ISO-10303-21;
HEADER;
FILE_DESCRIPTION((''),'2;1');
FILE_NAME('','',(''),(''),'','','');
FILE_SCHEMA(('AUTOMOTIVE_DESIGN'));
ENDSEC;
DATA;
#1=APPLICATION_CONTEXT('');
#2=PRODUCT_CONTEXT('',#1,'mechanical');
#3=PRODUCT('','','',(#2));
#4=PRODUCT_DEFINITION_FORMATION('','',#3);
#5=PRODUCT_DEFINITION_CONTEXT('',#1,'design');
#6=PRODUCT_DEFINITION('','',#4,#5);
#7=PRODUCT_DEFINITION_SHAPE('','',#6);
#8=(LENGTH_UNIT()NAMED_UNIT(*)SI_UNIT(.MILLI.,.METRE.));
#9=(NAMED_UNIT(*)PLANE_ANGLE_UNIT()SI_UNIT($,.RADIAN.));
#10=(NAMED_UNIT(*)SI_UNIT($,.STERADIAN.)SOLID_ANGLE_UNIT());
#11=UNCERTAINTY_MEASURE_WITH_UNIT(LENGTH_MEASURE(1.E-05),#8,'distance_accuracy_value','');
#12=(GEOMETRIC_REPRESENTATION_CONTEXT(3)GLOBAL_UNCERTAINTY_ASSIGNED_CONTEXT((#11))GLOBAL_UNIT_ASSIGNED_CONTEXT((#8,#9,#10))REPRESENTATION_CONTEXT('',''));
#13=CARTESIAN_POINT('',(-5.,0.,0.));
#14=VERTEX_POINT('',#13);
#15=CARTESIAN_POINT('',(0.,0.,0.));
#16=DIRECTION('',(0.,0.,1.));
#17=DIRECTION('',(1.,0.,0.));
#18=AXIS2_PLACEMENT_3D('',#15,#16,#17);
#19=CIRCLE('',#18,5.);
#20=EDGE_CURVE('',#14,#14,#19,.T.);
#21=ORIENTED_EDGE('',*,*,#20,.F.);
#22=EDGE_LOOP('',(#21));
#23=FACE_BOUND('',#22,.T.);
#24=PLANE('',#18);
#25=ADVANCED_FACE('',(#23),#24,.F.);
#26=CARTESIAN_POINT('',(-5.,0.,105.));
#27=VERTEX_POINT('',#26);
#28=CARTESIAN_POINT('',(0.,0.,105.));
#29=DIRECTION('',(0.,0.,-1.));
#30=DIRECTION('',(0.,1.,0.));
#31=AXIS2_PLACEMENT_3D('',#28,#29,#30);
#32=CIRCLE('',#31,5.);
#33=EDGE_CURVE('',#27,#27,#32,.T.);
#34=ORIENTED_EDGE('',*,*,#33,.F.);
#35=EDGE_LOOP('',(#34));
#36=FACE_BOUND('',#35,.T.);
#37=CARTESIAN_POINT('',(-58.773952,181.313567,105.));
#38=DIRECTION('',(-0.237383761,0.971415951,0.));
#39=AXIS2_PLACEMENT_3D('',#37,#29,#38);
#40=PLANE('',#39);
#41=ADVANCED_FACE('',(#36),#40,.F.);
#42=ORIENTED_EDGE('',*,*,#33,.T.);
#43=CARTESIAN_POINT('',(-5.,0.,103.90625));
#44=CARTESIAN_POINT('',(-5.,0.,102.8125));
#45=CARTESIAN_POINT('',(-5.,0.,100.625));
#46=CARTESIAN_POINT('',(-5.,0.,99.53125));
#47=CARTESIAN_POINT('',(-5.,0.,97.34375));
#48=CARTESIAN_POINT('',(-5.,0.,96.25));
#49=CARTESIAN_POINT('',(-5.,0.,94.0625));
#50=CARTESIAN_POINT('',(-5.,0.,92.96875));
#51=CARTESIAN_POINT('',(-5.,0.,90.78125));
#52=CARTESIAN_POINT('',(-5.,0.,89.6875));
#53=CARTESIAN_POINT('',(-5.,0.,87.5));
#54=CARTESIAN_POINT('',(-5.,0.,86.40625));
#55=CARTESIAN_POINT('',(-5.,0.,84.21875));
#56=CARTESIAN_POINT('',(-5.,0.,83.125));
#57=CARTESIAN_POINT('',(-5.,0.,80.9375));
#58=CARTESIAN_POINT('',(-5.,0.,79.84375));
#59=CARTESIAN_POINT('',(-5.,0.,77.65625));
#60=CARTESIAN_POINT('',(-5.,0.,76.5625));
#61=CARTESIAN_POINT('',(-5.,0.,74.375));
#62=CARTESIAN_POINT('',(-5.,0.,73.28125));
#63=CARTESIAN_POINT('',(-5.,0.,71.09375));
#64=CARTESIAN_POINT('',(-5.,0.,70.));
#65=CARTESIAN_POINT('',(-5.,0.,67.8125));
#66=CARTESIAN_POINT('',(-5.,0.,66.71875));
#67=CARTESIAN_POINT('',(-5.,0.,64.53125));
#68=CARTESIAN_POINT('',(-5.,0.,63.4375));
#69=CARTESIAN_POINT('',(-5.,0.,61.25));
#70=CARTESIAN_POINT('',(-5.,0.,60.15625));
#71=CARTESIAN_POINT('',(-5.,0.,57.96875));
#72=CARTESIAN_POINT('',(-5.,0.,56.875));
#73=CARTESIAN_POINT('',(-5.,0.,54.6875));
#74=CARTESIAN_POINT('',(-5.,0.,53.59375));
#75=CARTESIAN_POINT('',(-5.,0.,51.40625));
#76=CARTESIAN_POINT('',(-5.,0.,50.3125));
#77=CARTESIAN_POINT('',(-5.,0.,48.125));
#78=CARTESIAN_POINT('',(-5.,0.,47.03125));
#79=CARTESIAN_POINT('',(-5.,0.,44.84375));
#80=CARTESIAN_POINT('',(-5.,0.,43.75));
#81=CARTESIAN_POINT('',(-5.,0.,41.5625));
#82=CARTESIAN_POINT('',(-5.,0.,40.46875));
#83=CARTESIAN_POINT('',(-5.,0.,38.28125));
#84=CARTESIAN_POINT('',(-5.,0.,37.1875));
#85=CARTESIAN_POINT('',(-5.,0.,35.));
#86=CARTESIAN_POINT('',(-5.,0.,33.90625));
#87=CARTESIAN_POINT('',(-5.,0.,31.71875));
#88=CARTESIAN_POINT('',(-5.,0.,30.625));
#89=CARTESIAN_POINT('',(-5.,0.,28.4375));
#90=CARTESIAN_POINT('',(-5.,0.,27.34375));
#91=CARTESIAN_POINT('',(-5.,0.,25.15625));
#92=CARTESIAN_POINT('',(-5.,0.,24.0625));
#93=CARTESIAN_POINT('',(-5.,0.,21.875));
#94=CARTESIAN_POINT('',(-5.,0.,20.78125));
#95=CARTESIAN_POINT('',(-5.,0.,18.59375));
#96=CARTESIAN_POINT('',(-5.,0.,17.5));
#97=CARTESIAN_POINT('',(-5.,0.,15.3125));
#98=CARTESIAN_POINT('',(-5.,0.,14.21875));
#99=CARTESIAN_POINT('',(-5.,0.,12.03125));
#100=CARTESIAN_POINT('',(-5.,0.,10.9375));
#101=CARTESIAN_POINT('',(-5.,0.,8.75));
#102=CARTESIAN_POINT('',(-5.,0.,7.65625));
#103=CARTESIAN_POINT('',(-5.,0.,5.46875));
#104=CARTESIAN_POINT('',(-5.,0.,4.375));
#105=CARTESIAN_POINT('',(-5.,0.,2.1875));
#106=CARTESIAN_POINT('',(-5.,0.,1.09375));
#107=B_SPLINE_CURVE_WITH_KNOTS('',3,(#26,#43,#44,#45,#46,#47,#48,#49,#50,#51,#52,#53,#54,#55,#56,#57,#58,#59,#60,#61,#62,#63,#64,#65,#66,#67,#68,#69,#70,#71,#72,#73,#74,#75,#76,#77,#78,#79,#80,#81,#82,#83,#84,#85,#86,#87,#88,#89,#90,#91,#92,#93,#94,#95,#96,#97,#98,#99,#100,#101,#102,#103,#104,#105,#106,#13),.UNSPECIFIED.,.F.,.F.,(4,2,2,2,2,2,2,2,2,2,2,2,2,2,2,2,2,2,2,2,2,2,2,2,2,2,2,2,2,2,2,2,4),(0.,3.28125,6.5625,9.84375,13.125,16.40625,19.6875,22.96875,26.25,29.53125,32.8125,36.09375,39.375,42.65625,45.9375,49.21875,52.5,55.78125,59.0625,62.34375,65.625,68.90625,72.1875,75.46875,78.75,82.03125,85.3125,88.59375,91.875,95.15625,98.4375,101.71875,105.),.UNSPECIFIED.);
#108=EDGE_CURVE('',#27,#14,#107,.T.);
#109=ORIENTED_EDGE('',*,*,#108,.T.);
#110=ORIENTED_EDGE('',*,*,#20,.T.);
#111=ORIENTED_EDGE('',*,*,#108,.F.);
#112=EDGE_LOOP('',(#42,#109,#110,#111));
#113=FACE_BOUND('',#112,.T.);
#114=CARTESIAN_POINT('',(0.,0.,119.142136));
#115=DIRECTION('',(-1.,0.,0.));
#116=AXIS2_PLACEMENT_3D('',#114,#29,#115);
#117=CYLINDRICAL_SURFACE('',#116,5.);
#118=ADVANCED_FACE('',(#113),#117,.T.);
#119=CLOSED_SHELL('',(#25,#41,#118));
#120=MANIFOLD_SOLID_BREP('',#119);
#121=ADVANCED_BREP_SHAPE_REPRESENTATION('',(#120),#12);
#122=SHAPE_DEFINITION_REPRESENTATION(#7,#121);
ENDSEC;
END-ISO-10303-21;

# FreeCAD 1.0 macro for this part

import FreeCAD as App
import Part
import Sketcher
from FreeCAD import Vector

doc = App.newDocument("Part")
params = doc.addObject("Spreadsheet::Sheet", "Params")
for row, (alias, value) in enumerate([
    ("sketch1_diameter", "10 mm"),
    ("pad1_length", "105 mm"),
], start=1):
    params.set(f"A{row}", alias)
    params.set(f"B{row}", "=" + value)
    params.setAlias(f"B{row}", alias)

body = doc.addObject("PartDesign::Body", "Body")

# Sketch on XY plane
sketch1 = body.newObject("Sketcher::SketchObject", "Sketch")
sketch1.AttachmentSupport = (doc.getObject("XY_Plane"), [""])
sketch1.MapMode = "FlatFace"
sketch1.addGeometry(Part.Circle(Vector(0, 0, 0), Vector(0, 0, 1), 5), False)
sketch1.addConstraint([
    Sketcher.Constraint("Coincident", 0, 3, -1, 1),
    Sketcher.Constraint("Diameter", 0, 10.0),
])
sketch1.setExpression("Constraints[1]", "Params.sketch1_diameter")
pad1 = body.newObject("PartDesign::Pad", "Pad")
pad1.Profile = sketch1
pad1.setExpression("Length", "Params.pad1_length")

doc.recompute()
